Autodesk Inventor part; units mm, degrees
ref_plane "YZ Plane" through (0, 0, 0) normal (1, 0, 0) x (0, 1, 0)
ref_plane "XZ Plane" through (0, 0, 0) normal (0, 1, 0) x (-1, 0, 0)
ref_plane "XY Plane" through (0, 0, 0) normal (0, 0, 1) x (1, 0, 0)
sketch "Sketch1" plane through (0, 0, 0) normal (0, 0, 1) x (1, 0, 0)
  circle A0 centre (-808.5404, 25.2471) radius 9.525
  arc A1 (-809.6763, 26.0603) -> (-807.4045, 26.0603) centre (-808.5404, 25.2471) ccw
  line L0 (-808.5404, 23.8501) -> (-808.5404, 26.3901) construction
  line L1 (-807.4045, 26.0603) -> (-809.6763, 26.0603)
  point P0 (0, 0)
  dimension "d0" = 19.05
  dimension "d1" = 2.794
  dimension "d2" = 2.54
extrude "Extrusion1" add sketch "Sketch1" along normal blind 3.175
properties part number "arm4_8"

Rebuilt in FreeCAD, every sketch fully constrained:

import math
import FreeCAD as App
import Part
import Sketcher

V = App.Vector
Q = App.Units.Quantity

doc = App.newDocument("Part")
body = doc.addObject("PartDesign::Body", "Body")

sketch1 = doc.addObject("Sketcher::SketchObject", "Sketch")
body.addObject(sketch1)
sketch1.AttachmentSupport = (doc.XY_Plane, [""])
sketch1.MapMode = "FlatFace"
sketch1.addGeometry([
    Part.Circle(V(-808.5404, 25.2471, 0), V(0, 0, 1), 9.525),
    Part.ArcOfCircle(Part.Circle(V(-808.5404, 25.2471, 0), V(0, 0, 1), 1.396984), math.radians(144.400818), math.radians(395.599182)),
    Part.LineSegment(V(-809.6763, 26.0603, 0), V(-807.4045, 26.0603, 0)),
], False)
sketch1.addConstraint([
    Sketcher.Constraint("Coincident", 1, 1, 2, 1),
    Sketcher.Constraint("Coincident", 2, 2, 1, 2),
    Sketcher.Constraint("Horizontal", 2),
    Sketcher.Constraint("Coincident", 1, 3, 0, 3),
    Sketcher.Constraint("Diameter", 0, Q("0.75 in")),
    Sketcher.Constraint("Radius", 1, Q("0.055 in")),
    Sketcher.Constraint("DistanceY", -1, 1, 1, 1, Q("1.026 in")),
    Sketcher.Constraint("DistanceX", 2, 1, 2, 2, 2.2718),
    Sketcher.Constraint("DistanceX", 0, 3, -1, 1, Q("31.8323 in")),
])
pad1 = doc.addObject("PartDesign::Pad", "Pad")
body.addObject(pad1)
pad1.Profile = sketch1
pad1.Length = Q("0.125 in")

doc.recompute()
